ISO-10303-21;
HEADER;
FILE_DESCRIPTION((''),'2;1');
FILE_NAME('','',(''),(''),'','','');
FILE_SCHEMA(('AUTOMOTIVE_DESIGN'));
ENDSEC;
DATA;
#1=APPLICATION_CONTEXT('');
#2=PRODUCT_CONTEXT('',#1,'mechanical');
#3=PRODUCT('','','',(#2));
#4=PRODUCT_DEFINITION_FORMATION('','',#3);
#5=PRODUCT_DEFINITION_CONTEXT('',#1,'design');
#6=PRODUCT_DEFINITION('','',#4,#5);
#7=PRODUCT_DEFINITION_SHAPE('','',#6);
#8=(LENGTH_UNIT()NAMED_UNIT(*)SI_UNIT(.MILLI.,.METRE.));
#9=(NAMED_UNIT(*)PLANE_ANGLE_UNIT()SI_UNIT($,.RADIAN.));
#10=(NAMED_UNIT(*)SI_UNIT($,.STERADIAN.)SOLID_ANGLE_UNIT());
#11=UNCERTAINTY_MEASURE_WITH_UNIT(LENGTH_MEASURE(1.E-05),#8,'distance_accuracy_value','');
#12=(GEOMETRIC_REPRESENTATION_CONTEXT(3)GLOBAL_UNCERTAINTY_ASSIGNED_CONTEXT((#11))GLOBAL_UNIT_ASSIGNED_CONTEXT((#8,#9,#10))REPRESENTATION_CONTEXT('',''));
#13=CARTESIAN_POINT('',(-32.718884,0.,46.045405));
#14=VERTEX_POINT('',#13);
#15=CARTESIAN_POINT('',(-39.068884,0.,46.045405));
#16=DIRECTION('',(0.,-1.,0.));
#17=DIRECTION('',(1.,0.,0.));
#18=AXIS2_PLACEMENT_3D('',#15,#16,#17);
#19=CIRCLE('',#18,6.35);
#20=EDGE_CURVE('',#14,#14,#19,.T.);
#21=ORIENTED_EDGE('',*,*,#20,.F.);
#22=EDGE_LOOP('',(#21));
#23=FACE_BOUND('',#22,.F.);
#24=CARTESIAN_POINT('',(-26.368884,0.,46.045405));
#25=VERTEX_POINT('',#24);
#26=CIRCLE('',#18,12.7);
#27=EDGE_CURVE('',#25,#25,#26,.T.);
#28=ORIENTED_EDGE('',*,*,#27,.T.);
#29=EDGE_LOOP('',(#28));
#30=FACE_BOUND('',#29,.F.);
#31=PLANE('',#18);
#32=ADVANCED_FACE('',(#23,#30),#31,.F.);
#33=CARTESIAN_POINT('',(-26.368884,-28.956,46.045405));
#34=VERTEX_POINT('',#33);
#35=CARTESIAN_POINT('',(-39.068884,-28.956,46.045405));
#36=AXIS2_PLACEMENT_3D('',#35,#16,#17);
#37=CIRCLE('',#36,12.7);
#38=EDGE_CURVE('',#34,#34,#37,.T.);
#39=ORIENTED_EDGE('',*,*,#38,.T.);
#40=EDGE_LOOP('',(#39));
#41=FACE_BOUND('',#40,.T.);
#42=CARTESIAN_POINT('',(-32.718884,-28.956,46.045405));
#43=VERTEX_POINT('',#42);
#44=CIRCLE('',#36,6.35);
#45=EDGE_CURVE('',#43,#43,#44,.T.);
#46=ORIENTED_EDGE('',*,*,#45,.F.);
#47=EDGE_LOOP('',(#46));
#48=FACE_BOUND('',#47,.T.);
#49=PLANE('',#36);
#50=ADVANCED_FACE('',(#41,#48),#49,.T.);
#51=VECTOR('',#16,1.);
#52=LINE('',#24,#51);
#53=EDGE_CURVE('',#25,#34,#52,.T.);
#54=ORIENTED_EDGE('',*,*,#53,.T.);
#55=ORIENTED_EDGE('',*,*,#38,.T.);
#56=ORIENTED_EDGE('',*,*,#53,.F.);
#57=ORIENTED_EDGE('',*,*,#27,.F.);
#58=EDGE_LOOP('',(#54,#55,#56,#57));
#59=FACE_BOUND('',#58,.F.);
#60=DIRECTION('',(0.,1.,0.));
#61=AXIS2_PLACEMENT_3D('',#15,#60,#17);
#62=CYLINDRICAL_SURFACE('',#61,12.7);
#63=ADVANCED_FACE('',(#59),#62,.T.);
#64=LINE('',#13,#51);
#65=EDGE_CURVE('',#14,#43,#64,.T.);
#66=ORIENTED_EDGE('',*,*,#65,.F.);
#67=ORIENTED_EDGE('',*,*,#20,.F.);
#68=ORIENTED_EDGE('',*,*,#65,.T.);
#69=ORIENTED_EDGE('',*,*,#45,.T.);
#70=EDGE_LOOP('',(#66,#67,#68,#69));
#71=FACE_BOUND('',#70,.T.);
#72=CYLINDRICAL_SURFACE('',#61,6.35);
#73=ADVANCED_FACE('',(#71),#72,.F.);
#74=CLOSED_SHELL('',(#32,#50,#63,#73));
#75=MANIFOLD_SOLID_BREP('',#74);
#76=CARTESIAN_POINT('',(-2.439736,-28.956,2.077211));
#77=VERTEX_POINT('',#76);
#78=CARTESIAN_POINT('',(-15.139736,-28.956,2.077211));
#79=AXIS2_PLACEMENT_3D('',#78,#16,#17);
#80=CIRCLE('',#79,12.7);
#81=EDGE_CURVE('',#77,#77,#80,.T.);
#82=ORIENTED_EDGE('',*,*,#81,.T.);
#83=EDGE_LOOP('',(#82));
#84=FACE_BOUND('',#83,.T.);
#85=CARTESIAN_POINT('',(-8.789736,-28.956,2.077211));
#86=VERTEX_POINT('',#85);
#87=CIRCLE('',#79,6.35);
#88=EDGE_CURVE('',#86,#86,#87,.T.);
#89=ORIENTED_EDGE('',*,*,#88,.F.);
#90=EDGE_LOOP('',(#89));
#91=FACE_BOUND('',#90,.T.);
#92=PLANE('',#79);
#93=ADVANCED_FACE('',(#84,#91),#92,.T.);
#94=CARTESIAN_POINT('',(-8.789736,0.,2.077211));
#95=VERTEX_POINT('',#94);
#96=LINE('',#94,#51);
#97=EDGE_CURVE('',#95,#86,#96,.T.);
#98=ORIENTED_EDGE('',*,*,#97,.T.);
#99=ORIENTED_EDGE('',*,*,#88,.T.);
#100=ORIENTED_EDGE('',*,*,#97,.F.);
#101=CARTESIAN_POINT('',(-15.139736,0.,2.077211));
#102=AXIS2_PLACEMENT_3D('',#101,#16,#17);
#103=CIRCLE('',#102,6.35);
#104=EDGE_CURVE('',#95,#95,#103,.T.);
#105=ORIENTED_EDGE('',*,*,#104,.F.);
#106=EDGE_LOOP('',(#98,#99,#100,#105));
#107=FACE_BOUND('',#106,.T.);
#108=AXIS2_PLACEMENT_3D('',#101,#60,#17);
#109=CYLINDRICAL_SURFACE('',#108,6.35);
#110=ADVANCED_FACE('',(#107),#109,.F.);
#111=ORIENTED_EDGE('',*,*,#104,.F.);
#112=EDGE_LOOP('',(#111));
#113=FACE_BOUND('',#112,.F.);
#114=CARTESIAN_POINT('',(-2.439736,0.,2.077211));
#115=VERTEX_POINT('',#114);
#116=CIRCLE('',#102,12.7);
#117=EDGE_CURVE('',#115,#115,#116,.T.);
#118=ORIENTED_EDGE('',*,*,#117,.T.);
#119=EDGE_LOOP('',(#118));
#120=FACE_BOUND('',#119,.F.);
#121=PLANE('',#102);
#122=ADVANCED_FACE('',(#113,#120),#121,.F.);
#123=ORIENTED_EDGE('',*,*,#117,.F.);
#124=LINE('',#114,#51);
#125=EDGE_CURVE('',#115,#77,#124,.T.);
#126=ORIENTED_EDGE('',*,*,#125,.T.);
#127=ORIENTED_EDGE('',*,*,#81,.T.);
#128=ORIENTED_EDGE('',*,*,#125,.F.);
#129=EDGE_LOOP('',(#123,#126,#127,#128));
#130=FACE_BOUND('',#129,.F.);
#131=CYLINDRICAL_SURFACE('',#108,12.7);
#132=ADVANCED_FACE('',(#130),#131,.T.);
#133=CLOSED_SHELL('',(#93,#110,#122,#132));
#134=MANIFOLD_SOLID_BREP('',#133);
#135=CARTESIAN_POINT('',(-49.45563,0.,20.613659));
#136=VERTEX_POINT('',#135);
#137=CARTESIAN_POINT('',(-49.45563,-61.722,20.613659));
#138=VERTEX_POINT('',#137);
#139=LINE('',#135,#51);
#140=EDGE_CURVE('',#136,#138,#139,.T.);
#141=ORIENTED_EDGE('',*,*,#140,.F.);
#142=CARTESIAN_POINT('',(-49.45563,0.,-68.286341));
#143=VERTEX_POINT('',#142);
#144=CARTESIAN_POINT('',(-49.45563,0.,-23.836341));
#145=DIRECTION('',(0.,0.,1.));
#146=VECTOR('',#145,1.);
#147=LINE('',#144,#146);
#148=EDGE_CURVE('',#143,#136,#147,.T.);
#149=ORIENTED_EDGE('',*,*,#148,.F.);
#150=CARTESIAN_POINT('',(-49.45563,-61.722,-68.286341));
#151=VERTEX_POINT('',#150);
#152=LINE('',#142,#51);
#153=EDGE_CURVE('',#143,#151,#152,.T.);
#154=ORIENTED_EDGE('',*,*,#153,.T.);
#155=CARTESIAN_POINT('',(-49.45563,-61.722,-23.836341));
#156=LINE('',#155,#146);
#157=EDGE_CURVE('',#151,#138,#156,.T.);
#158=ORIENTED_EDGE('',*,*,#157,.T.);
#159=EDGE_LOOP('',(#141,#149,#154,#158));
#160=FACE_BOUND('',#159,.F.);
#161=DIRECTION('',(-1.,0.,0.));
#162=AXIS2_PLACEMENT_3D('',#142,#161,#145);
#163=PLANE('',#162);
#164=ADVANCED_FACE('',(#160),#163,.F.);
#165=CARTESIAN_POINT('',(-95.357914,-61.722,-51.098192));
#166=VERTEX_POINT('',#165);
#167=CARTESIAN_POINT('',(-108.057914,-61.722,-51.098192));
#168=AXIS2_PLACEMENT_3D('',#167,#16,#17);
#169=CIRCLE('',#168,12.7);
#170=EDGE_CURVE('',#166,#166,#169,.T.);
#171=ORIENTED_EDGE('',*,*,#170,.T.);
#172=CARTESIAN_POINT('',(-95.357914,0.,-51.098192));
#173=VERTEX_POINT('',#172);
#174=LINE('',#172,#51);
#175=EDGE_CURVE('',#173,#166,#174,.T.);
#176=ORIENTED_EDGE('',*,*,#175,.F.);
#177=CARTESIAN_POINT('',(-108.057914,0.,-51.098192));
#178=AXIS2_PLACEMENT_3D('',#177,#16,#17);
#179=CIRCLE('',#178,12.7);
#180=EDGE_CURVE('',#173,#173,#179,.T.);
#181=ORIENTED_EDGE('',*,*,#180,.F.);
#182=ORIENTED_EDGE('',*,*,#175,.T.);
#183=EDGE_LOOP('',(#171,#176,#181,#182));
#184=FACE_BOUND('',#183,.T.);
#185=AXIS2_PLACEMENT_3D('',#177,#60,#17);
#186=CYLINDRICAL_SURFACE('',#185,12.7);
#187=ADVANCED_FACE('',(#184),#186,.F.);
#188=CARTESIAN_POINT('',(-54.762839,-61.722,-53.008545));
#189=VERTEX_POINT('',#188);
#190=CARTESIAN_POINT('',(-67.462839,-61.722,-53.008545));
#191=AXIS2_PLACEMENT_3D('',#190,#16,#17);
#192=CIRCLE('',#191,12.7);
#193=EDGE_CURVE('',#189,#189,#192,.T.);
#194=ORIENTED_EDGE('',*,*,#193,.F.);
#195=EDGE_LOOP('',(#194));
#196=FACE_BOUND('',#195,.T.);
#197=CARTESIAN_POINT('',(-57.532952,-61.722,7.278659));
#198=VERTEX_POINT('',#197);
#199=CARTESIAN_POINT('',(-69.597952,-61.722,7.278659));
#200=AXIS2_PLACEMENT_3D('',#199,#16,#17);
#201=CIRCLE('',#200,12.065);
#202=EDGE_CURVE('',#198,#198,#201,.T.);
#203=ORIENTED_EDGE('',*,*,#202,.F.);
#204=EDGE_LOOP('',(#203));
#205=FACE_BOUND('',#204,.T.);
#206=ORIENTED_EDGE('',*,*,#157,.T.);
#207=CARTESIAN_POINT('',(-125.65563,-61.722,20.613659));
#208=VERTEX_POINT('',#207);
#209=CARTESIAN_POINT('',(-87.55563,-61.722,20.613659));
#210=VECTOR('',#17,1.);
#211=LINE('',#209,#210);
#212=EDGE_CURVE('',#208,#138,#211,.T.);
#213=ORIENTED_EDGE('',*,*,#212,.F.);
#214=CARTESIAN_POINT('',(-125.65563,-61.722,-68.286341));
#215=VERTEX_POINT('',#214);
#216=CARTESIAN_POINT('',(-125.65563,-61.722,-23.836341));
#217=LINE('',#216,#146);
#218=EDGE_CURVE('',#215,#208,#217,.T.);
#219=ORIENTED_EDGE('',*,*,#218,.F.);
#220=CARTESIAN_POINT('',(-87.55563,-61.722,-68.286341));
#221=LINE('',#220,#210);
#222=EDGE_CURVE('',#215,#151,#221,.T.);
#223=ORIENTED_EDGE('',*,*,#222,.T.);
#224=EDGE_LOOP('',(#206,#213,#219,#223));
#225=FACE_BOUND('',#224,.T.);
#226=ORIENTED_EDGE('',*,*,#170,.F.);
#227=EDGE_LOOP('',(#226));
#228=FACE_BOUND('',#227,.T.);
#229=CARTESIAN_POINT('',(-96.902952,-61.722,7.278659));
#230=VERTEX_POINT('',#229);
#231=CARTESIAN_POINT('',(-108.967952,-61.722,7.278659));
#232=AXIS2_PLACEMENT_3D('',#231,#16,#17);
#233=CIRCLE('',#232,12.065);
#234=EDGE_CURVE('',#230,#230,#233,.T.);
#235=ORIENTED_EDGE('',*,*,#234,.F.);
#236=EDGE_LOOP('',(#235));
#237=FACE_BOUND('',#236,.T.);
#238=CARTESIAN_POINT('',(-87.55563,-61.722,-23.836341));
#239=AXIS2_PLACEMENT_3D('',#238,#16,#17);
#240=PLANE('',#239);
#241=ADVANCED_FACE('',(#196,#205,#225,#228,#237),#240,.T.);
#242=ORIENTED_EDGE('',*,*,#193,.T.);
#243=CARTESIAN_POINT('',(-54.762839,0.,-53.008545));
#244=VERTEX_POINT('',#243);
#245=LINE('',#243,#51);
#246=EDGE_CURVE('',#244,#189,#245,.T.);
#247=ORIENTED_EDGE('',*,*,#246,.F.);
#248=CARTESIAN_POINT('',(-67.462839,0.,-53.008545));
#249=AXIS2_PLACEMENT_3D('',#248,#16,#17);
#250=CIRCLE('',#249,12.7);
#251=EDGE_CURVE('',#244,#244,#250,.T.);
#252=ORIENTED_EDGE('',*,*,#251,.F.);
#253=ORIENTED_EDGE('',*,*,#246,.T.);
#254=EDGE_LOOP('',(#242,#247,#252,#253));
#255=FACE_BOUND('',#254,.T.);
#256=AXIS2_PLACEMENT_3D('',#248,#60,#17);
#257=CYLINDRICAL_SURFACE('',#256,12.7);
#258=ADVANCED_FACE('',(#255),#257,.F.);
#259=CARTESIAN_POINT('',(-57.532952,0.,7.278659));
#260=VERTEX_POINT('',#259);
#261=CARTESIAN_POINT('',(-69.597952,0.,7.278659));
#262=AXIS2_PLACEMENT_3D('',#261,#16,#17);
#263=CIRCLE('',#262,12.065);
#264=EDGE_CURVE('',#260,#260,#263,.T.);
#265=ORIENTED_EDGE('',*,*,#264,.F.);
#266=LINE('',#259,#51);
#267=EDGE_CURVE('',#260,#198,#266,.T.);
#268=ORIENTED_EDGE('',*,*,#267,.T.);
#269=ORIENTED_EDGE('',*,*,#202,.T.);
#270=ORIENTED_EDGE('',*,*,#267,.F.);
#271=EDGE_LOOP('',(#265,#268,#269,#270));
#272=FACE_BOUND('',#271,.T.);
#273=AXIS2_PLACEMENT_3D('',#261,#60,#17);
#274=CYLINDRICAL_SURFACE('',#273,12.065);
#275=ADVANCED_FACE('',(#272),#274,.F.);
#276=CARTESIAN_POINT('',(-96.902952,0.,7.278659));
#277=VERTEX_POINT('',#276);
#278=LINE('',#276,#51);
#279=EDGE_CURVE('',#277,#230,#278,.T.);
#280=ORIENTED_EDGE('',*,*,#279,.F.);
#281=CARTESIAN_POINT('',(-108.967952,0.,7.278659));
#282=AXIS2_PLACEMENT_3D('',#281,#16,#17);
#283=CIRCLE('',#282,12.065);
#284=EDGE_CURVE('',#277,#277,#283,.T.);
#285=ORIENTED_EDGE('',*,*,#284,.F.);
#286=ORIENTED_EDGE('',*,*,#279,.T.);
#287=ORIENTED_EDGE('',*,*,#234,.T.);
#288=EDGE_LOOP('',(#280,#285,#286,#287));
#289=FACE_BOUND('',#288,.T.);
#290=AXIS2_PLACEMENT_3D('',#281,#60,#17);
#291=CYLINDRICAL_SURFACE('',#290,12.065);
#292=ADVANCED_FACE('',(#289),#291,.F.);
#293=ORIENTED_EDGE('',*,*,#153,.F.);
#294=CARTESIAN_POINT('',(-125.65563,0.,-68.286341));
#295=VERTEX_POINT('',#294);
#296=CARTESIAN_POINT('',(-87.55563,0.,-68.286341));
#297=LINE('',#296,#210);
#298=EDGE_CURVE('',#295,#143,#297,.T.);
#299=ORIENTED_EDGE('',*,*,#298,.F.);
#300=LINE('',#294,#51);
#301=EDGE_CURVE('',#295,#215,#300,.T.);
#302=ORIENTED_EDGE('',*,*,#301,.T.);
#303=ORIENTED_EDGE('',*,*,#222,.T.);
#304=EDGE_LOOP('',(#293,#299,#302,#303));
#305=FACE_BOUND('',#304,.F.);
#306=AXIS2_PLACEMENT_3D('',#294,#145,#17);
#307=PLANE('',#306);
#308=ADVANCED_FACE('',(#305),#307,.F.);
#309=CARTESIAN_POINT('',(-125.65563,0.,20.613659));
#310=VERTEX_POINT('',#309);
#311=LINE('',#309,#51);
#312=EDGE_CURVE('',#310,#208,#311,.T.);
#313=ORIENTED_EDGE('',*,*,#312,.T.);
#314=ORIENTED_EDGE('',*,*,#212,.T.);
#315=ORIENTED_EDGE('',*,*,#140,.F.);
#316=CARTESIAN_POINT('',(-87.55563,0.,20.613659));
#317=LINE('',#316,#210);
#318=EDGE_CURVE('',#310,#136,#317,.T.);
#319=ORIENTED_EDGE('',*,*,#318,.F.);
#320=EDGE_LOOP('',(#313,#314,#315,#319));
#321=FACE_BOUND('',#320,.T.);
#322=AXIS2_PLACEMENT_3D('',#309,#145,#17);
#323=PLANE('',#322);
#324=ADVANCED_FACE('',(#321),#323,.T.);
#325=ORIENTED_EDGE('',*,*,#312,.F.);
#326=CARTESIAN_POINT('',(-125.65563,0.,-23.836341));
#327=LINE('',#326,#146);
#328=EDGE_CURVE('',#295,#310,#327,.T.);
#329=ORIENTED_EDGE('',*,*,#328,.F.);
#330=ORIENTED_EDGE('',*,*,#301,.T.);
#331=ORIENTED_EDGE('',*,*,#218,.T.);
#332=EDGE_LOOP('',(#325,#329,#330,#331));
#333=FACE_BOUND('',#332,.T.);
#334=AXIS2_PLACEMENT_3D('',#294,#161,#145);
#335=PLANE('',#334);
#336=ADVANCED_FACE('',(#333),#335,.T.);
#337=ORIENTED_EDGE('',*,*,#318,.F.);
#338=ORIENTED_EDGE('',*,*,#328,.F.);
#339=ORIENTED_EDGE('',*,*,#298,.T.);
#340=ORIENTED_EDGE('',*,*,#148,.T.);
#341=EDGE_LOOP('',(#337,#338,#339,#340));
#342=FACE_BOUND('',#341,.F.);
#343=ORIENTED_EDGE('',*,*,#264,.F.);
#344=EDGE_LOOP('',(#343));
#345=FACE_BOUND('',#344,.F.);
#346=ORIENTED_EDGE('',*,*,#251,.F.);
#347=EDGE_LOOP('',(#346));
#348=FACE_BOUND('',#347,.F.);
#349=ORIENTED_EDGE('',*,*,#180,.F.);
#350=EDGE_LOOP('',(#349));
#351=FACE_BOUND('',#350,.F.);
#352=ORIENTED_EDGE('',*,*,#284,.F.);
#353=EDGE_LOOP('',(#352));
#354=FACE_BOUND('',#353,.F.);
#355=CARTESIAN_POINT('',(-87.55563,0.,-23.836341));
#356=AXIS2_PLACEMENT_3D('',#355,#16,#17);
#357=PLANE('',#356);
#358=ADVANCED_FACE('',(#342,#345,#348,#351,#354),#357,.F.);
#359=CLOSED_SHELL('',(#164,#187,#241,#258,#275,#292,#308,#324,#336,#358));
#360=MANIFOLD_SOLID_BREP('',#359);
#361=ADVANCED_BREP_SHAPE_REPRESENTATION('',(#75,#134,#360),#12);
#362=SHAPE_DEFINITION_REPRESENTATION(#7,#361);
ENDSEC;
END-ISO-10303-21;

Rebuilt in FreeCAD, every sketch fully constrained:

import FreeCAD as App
import Part
import Sketcher

V = App.Vector
Q = App.Units.Quantity

doc = App.newDocument("Part")
body = doc.addObject("PartDesign::Body", "Body")

sketch1 = body.newObject("Sketcher::SketchObject", "Sketch")
sketch1.AttachmentSupport = (doc.getObject("XZ_Plane"), [""])
sketch1.MapMode = "FlatFace"
sketch1.addGeometry([
    Part.LineSegment(V(-126, 21, 0), V(-126, -68, 0)),
    Part.LineSegment(V(-126, -68, 0), V(-49, -68, 0)),
    Part.LineSegment(V(-49, -68, 0), V(-49, 21, 0)),
    Part.LineSegment(V(-49, 21, 0), V(-126, 21, 0)),
    Part.Circle(V(-108, -51, 0), V(0, 0, 1), 13),
    Part.Circle(V(-67, -53, 0), V(0, 0, 1), 13),
    Part.Circle(V(-109, 7, 0), V(0, 0, 1), 12),
    Part.Circle(V(-70, 7, 0), V(0, 0, 1), 12),
], False)
sketch1.addConstraint([
    Sketcher.Constraint("Coincident", 0, 2, 1, 1),
    Sketcher.Constraint("Coincident", 1, 2, 2, 1),
    Sketcher.Constraint("Coincident", 2, 2, 3, 1),
    Sketcher.Constraint("Coincident", 3, 2, 0, 1),
    Sketcher.Constraint("Vertical", 0),
    Sketcher.Constraint("Horizontal", 1),
    Sketcher.Constraint("Vertical", 2),
    Sketcher.Constraint("Horizontal", 3),
    Sketcher.Constraint("Equal", 4, 5),
    Sketcher.Constraint("Equal", 6, 7),
    Sketcher.Constraint("Horizontal", 6, 3, 7, 3),
    Sketcher.Constraint("Diameter", 4, Q("1 in")),
    Sketcher.Constraint("Diameter", 6, Q("0.95 in")),
    Sketcher.Constraint("DistanceX", 1, 1, 1, 2, Q("3 in")),
    Sketcher.Constraint("DistanceY", 0, 2, 0, 1, Q("3.5 in")),
    Sketcher.Constraint("DistanceX", 6, 3, 7, 3, Q("1.55 in")),
    Sketcher.Constraint("DistanceY", 0, 2, 6, 3, Q("2.975 in")),
    Sketcher.Constraint("DistanceY", 4, 3, -1, 1, 51.098192),
    Sketcher.Constraint("DistanceX", 5, 3, -1, 1, 67.462839),
    Sketcher.Constraint("DistanceX", 6, 3, -1, 1, 108.967952),
    Sketcher.Constraint("DistanceY", -1, 1, 6, 3, 7.278659),
    Sketcher.Constraint("DistanceX", 0, 2, -1, 1, 125.65563),
    Sketcher.Constraint("DistanceX", 6, 3, 4, 3, 0.910038),
    Sketcher.Constraint("DistanceY", 5, 3, -1, 1, 53.008545),
])
pad1 = body.newObject("PartDesign::Pad", "Pad")
pad1.Profile = sketch1
pad1.Length = Q("2.43 in")
body2 = doc.addObject("PartDesign::Body", "Body001")
body2.AllowCompound = True

sketch2 = body2.newObject("Sketcher::SketchObject", "Sketch001")
sketch2.AttachmentSupport = (doc.getObject("XZ_Plane001"), [""])
sketch2.MapMode = "FlatFace"
sketch2.addGeometry([
    Part.Circle(V(-39, 46, 0), V(0, 0, 1), 13),
    Part.Circle(V(-39, 46, 0), V(0, 0, 1), 6),
    Part.Circle(V(-15, 2, 0), V(0, 0, 1), 13),
    Part.Circle(V(-15, 2, 0), V(0, 0, 1), 6),
], False)
sketch2.addConstraint([
    Sketcher.Constraint("Coincident", 1, 3, 0, 3),
    Sketcher.Constraint("Coincident", 3, 3, 2, 3),
    Sketcher.Constraint("Equal", 0, 2),
    Sketcher.Constraint("Equal", 1, 3),
    Sketcher.Constraint("Diameter", 0, Q("1 in")),
    Sketcher.Constraint("Diameter", 1, Q("0.5 in")),
    Sketcher.Constraint("DistanceY", -1, 1, 2, 3, 2.077211),
    Sketcher.Constraint("DistanceX", 0, 3, -1, 1, 39.068884),
    Sketcher.Constraint("DistanceY", -1, 1, 0, 3, 46.045405),
    Sketcher.Constraint("DistanceX", 2, 3, -1, 1, 15.139736),
])
pad2 = body2.newObject("PartDesign::Pad", "Pad001")
pad2.Profile = sketch2
pad2.Length = Q("1.14 in")

doc.recompute()
